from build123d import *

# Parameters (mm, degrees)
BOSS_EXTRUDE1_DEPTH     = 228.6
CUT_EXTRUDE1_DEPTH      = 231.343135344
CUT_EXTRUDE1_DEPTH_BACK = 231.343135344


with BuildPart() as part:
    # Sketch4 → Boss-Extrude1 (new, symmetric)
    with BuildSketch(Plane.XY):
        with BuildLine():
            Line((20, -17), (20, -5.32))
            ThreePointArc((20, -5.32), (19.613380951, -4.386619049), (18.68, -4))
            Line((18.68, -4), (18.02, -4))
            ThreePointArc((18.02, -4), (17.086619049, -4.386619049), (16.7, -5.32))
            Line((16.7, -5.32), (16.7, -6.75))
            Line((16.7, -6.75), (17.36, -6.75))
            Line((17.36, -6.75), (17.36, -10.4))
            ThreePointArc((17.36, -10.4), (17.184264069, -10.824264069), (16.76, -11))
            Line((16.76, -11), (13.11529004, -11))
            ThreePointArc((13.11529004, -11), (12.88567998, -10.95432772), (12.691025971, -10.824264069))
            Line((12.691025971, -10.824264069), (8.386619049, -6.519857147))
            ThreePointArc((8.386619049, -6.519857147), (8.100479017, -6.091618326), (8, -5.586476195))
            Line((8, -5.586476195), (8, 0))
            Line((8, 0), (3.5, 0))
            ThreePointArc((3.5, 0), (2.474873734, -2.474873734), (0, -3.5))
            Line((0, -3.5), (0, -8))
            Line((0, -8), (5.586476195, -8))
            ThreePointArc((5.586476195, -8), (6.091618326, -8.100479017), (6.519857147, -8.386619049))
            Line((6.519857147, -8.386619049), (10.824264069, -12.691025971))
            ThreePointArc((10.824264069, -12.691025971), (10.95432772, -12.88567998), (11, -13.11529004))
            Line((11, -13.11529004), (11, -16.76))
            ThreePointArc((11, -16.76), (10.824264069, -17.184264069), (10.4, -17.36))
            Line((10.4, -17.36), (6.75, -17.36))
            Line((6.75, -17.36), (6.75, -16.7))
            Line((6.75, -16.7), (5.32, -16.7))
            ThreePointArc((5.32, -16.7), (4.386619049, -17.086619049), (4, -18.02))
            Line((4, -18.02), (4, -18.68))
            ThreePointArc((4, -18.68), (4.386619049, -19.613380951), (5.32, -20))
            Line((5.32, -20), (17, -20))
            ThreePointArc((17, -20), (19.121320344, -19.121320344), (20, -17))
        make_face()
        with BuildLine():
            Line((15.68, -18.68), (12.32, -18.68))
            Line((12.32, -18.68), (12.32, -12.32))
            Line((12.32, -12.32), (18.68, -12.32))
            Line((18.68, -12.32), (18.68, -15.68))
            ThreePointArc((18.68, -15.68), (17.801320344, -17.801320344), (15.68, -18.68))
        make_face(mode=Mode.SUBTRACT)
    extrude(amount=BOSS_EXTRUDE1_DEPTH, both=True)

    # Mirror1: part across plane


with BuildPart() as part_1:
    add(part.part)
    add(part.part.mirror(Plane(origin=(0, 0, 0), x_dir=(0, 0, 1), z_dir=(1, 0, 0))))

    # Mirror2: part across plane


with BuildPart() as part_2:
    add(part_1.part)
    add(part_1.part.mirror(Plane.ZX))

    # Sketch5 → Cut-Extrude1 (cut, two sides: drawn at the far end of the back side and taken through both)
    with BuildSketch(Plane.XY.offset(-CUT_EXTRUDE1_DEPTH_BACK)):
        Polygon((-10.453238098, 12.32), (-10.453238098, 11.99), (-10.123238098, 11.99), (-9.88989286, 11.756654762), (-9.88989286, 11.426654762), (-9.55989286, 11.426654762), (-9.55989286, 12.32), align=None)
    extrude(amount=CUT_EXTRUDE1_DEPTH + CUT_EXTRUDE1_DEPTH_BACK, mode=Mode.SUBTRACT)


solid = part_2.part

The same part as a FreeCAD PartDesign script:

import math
import FreeCAD as App
import Part
import Sketcher

V = App.Vector
Q = App.Units.Quantity


def add_polygon(sketch, points):
    """Adds a closed chain of lines whose ends are joined by coincident constraints."""
    first, n = sketch.GeometryCount, len(points)
    for a, b in zip(points, points[1:] + points[:1]):
        sketch.addGeometry(Part.LineSegment(App.Vector(*a, 0), App.Vector(*b, 0)), False)
    for i in range(n):
        sketch.addConstraint(Sketcher.Constraint("Coincident", first + i, 2, first + (i + 1) % n, 1))

doc = App.newDocument("Part")
body = doc.addObject("PartDesign::Body", "Body")

# Sketch on XY plane
sketch1 = doc.addObject("Sketcher::SketchObject", "Sketch")
body.addObject(sketch1)
sketch1.AttachmentSupport = (doc.XY_Plane, [""])
sketch1.MapMode = "FlatFace"
sketch1.addGeometry([
    Part.LineSegment(V(20, -17, 0), V(20, -5.32, 0)),  # 0
    Part.ArcOfCircle(Part.Circle(V(18.68, -5.32, 0), V(0, 0, 1), 1.32), math.radians(0), math.radians(90)),  # 1
    Part.LineSegment(V(18.68, -4, 0), V(18.02, -4, 0)),  # 2
    Part.ArcOfCircle(Part.Circle(V(18.02, -5.32, 0), V(0, 0, 1), 1.32), math.radians(90), math.radians(180)),  # 3
    Part.LineSegment(V(16.7, -5.32, 0), V(16.7, -6.75, 0)),  # 4
    Part.LineSegment(V(16.7, -6.75, 0), V(17.36, -6.75, 0)),  # 5
    Part.LineSegment(V(17.36, -6.75, 0), V(17.36, -10.4, 0)),  # 6
    Part.ArcOfCircle(Part.Circle(V(16.76, -10.4, 0), V(0, 0, 1), 0.6), math.radians(-90), math.radians(0)),  # 7
    Part.LineSegment(V(16.76, -11, 0), V(13.12, -11, 0)),  # 8
    Part.ArcOfCircle(Part.Circle(V(13.12, -10.4, 0), V(0, 0, 1), 0.6), math.radians(-135), math.radians(-90)),  # 9
    Part.LineSegment(V(12.69, -10.82, 0), V(8.39, -6.52, 0)),  # 10
    Part.ArcOfCircle(Part.Circle(V(9.32, -5.59, 0), V(0, 0, 1), 1.32), math.radians(180), math.radians(225)),  # 11
    Part.LineSegment(V(8, -5.59, 0), V(8, 0, 0)),  # 12
    Part.LineSegment(V(8, 0, 0), V(3.5, 0, 0)),  # 13
    Part.ArcOfCircle(Part.Circle(V(0, 0, 0), V(0, 0, 1), 3.5), math.radians(-90), math.radians(0)),  # 14
    Part.LineSegment(V(0, -3.5, 0), V(0, -8, 0)),  # 15
    Part.LineSegment(V(0, -8, 0), V(5.59, -8, 0)),  # 16
    Part.ArcOfCircle(Part.Circle(V(5.59, -9.32, 0), V(0, 0, 1), 1.32), math.radians(45), math.radians(90)),  # 17
    Part.LineSegment(V(6.52, -8.39, 0), V(10.82, -12.69, 0)),  # 18
    Part.ArcOfCircle(Part.Circle(V(10.4, -13.12, 0), V(0, 0, 1), 0.6), math.radians(0), math.radians(45)),  # 19
    Part.LineSegment(V(11, -13.12, 0), V(11, -16.76, 0)),  # 20
    Part.ArcOfCircle(Part.Circle(V(10.4, -16.76, 0), V(0, 0, 1), 0.6), math.radians(-90), math.radians(0)),  # 21
    Part.LineSegment(V(10.4, -17.36, 0), V(6.75, -17.36, 0)),  # 22
    Part.LineSegment(V(6.75, -17.36, 0), V(6.75, -16.7, 0)),  # 23
    Part.LineSegment(V(6.75, -16.7, 0), V(5.32, -16.7, 0)),  # 24
    Part.ArcOfCircle(Part.Circle(V(5.32, -18.02, 0), V(0, 0, 1), 1.32), math.radians(90), math.radians(180)),  # 25
    Part.LineSegment(V(4, -18.02, 0), V(4, -18.68, 0)),  # 26
    Part.ArcOfCircle(Part.Circle(V(5.32, -18.68, 0), V(0, 0, 1), 1.32), math.radians(-180), math.radians(-90)),  # 27
    Part.LineSegment(V(5.32, -20, 0), V(17, -20, 0)),  # 28
    Part.ArcOfCircle(Part.Circle(V(17, -17, 0), V(0, 0, 1), 3), math.radians(-90), math.radians(0)),  # 29
    Part.ArcOfCircle(Part.Circle(V(15.68, -15.68, 0), V(0, 0, 1), 3), math.radians(-90), math.radians(0)),  # 30
    Part.LineSegment(V(15.68, -18.68, 0), V(12.32, -18.68, 0)),  # 31
    Part.LineSegment(V(12.32, -18.68, 0), V(12.32, -12.32, 0)),  # 32
    Part.LineSegment(V(12.32, -12.32, 0), V(18.68, -12.32, 0)),  # 33
    Part.LineSegment(V(18.68, -12.32, 0), V(18.68, -15.68, 0)),  # 34
], False)
sketch1.addConstraint([
    Sketcher.Constraint("Tangent", 0, 2, 1, 1),
    Sketcher.Constraint("Tangent", 1, 2, 2, 1),
    Sketcher.Constraint("Tangent", 2, 2, 3, 1),
    Sketcher.Constraint("Tangent", 3, 2, 4, 1),
    Sketcher.Constraint("Coincident", 4, 2, 5, 1),
    Sketcher.Constraint("Coincident", 5, 2, 6, 1),
    Sketcher.Constraint("Tangent", 6, 2, 7, 2),
    Sketcher.Constraint("Tangent", 7, 1, 8, 1),
    Sketcher.Constraint("Tangent", 8, 2, 9, 2),
    Sketcher.Constraint("Tangent", 9, 1, 10, 1),
    Sketcher.Constraint("Tangent", 10, 2, 11, 2),
    Sketcher.Constraint("Tangent", 11, 1, 12, 1),
    Sketcher.Constraint("Coincident", 12, 2, 13, 1),
    Sketcher.Constraint("Coincident", 13, 2, 14, 2),
    Sketcher.Constraint("Coincident", 14, 1, 15, 1),
    Sketcher.Constraint("Coincident", 15, 2, 16, 1),
    Sketcher.Constraint("Tangent", 16, 2, 17, 2),
    Sketcher.Constraint("Tangent", 17, 1, 18, 1),
    Sketcher.Constraint("Tangent", 18, 2, 19, 2),
    Sketcher.Constraint("Tangent", 19, 1, 20, 1),
    Sketcher.Constraint("Tangent", 20, 2, 21, 2),
    Sketcher.Constraint("Tangent", 21, 1, 22, 1),
    Sketcher.Constraint("Coincident", 22, 2, 23, 1),
    Sketcher.Constraint("Coincident", 23, 2, 24, 1),
    Sketcher.Constraint("Tangent", 24, 2, 25, 1),
    Sketcher.Constraint("Tangent", 25, 2, 26, 1),
    Sketcher.Constraint("Tangent", 26, 2, 27, 1),
    Sketcher.Constraint("Tangent", 27, 2, 28, 1),
    Sketcher.Constraint("Tangent", 28, 2, 29, 1),
    Sketcher.Constraint("Tangent", 29, 2, 0, 1),
    Sketcher.Constraint("Tangent", 30, 1, 31, 1),
    Sketcher.Constraint("Coincident", 31, 2, 32, 1),
    Sketcher.Constraint("Coincident", 32, 2, 33, 1),
    Sketcher.Constraint("Coincident", 33, 2, 34, 1),
    Sketcher.Constraint("Tangent", 34, 2, 30, 2),
    Sketcher.Constraint("Vertical", 0),
    Sketcher.Constraint("Horizontal", 2),
    Sketcher.Constraint("Vertical", 4),
    Sketcher.Constraint("Horizontal", 5),
    Sketcher.Constraint("Vertical", 6),
    Sketcher.Constraint("Horizontal", 8),
    Sketcher.Constraint("Vertical", 12),
    Sketcher.Constraint("Horizontal", 13),
    Sketcher.Constraint("Vertical", 15),
    Sketcher.Constraint("Horizontal", 16),
    Sketcher.Constraint("Vertical", 20),
    Sketcher.Constraint("Horizontal", 22),
    Sketcher.Constraint("Vertical", 23),
    Sketcher.Constraint("Horizontal", 24),
    Sketcher.Constraint("Vertical", 26),
    Sketcher.Constraint("Horizontal", 28),
    Sketcher.Constraint("Horizontal", 31),
    Sketcher.Constraint("Vertical", 32),
    Sketcher.Constraint("Horizontal", 33),
    Sketcher.Constraint("Vertical", 34),
    Sketcher.Constraint("Coincident", 14, 3, -1, 1),
    Sketcher.Constraint("Equal", 1, 3),
    Sketcher.Constraint("Equal", 7, 9),
    Sketcher.Constraint("Equal", 3, 11),
    Sketcher.Constraint("Equal", 11, 17),
    Sketcher.Constraint("Equal", 9, 19),
    Sketcher.Constraint("Equal", 19, 21),
    Sketcher.Constraint("Equal", 17, 25),
    Sketcher.Constraint("Equal", 25, 27),
    Sketcher.Constraint("Equal", 29, 30),
    Sketcher.Constraint("PointOnObject", 12, 2, -1),
    Sketcher.Constraint("PointOnObject", 14, 1, -2),
    Sketcher.Constraint("Parallel", 10, 18),
    Sketcher.Constraint("Horizontal", 26, 2, 30, 1),
    Sketcher.Constraint("Vertical", 1, 2, 33, 2),
    Sketcher.Constraint("Equal", 2, 5),
    Sketcher.Constraint("Equal", 28, 0),
    Sketcher.Constraint("Equal", 24, 4),
    Sketcher.Constraint("Equal", 22, 6),
    Sketcher.Constraint("Equal", 16, 12),
    Sketcher.Constraint("Equal", 13, 15),
    Sketcher.Constraint("Equal", 8, 20),
    Sketcher.Constraint("Equal", 5, 23),
    Sketcher.Constraint("Equal", 23, 26),
    Sketcher.Constraint("Equal", 33, 32),
    Sketcher.Constraint("Equal", 10, 18),
    Sketcher.Constraint("Radius", 29, Q("3 mm")),
    Sketcher.Constraint("Radius", 7, Q("0.6 mm")),
    Sketcher.Constraint("Radius", 14, Q("3.5 mm")),
    Sketcher.Constraint("Radius", 1, Q("1.32 mm")),
    Sketcher.Constraint("DistanceX", 13, 2, 13, 1, Q("4.5 mm")),
    Sketcher.Constraint("DistanceX", -1, 1, 29, 3, Q("17 mm")),
    Sketcher.Constraint("DistanceY", 1, 2, -1, 1, Q("4 mm")),
    Sketcher.Constraint("DistanceY", 7, 1, -1, 1, Q("11 mm")),
    Sketcher.Constraint("DistanceX", 2, 2, 2, 1, Q("0.66 mm")),
    Sketcher.Constraint("DistanceX", 22, 2, 22, 1, Q("3.65 mm")),
    Sketcher.Constraint("DistanceX", 31, 2, 31, 1, Q("3.36 mm")),
    Sketcher.Constraint("DistanceX", 8, 2, 8, 1, Q("3.64471 mm")),
])
pad1 = doc.addObject("PartDesign::Pad", "Pad")
body.addObject(pad1)
pad1.Profile = sketch1
pad1.Length = 457.2
pad1.Midplane = True
body2 = doc.addObject("PartDesign::Body", "Body001")
doc.recompute()

body2.BaseFeature = body
doc.recompute()

mirroring = doc.addObject("Part::Mirroring", "Mirroring")
mirroring.Source = body
mirroring.Base = V(0, 0, 0)
mirroring.Normal = V(1, 0, 0)
body3 = doc.addObject("PartDesign::Body", "Body002")
body3.BaseFeature = mirroring
boolean = doc.addObject("PartDesign::Boolean", "Boolean")
body2.addObject(boolean)
boolean.Type = "Fuse"
boolean.addObjects([body3])
doc.recompute()
body4 = doc.addObject("PartDesign::Body", "Body003")
doc.recompute()

body4.BaseFeature = body2
doc.recompute()

mirroring2 = doc.addObject("Part::Mirroring", "Mirroring001")
mirroring2.Source = body2
mirroring2.Base = V(0, 0, 0)
mirroring2.Normal = V(0, 1, 0)
body5 = doc.addObject("PartDesign::Body", "Body004")
body5.BaseFeature = mirroring2
boolean2 = doc.addObject("PartDesign::Boolean", "Boolean001")
body4.addObject(boolean2)
boolean2.Type = "Fuse"
boolean2.addObjects([body5])
doc.recompute()

# Sketch on XY plane
sketch2 = doc.addObject("Sketcher::SketchObject", "Sketch001")
body4.addObject(sketch2)
sketch2.AttachmentSupport = (doc.getObject("XY_Plane003"), [""])
sketch2.MapMode = "FlatFace"
add_polygon(sketch2, [(-10.45, 12.32), (-10.45, 11.99), (-10.12, 11.99), (-9.89, 11.76), (-9.89, 11.43), (-9.56, 11.43), (-9.56, 12.32)])  # lines 0-6
sketch2.addConstraint([
    Sketcher.Constraint("Vertical", 0),
    Sketcher.Constraint("Horizontal", 1),
    Sketcher.Constraint("Vertical", 3),
    Sketcher.Constraint("Horizontal", 4),
    Sketcher.Constraint("Vertical", 5),
    Sketcher.Constraint("Horizontal", 6),
    Sketcher.Constraint("Equal", 1, 4),
    Sketcher.Constraint("Equal", 4, 0),
    Sketcher.Constraint("Equal", 0, 3),
    Sketcher.Constraint("Equal", 6, 5),
    Sketcher.Constraint("DistanceX", 1, 1, 1, 2, Q("0.33 mm")),
    Sketcher.Constraint("Distance", 2, Q("0.33 mm")),
    Sketcher.Constraint("DistanceY", -1, 1, 0, 2, Q("11.99 mm")),
    Sketcher.Constraint("DistanceX", 0, 2, -1, 1, Q("10.453238 mm")),
])
pocket1 = doc.addObject("PartDesign::Pocket", "Pocket")
body4.addObject(pocket1)
pocket1.Profile = sketch2
pocket1.Type = "ThroughAll"
pocket1.Midplane = True
mirroring.Visibility = False
mirroring2.Visibility = False

doc.recompute()
